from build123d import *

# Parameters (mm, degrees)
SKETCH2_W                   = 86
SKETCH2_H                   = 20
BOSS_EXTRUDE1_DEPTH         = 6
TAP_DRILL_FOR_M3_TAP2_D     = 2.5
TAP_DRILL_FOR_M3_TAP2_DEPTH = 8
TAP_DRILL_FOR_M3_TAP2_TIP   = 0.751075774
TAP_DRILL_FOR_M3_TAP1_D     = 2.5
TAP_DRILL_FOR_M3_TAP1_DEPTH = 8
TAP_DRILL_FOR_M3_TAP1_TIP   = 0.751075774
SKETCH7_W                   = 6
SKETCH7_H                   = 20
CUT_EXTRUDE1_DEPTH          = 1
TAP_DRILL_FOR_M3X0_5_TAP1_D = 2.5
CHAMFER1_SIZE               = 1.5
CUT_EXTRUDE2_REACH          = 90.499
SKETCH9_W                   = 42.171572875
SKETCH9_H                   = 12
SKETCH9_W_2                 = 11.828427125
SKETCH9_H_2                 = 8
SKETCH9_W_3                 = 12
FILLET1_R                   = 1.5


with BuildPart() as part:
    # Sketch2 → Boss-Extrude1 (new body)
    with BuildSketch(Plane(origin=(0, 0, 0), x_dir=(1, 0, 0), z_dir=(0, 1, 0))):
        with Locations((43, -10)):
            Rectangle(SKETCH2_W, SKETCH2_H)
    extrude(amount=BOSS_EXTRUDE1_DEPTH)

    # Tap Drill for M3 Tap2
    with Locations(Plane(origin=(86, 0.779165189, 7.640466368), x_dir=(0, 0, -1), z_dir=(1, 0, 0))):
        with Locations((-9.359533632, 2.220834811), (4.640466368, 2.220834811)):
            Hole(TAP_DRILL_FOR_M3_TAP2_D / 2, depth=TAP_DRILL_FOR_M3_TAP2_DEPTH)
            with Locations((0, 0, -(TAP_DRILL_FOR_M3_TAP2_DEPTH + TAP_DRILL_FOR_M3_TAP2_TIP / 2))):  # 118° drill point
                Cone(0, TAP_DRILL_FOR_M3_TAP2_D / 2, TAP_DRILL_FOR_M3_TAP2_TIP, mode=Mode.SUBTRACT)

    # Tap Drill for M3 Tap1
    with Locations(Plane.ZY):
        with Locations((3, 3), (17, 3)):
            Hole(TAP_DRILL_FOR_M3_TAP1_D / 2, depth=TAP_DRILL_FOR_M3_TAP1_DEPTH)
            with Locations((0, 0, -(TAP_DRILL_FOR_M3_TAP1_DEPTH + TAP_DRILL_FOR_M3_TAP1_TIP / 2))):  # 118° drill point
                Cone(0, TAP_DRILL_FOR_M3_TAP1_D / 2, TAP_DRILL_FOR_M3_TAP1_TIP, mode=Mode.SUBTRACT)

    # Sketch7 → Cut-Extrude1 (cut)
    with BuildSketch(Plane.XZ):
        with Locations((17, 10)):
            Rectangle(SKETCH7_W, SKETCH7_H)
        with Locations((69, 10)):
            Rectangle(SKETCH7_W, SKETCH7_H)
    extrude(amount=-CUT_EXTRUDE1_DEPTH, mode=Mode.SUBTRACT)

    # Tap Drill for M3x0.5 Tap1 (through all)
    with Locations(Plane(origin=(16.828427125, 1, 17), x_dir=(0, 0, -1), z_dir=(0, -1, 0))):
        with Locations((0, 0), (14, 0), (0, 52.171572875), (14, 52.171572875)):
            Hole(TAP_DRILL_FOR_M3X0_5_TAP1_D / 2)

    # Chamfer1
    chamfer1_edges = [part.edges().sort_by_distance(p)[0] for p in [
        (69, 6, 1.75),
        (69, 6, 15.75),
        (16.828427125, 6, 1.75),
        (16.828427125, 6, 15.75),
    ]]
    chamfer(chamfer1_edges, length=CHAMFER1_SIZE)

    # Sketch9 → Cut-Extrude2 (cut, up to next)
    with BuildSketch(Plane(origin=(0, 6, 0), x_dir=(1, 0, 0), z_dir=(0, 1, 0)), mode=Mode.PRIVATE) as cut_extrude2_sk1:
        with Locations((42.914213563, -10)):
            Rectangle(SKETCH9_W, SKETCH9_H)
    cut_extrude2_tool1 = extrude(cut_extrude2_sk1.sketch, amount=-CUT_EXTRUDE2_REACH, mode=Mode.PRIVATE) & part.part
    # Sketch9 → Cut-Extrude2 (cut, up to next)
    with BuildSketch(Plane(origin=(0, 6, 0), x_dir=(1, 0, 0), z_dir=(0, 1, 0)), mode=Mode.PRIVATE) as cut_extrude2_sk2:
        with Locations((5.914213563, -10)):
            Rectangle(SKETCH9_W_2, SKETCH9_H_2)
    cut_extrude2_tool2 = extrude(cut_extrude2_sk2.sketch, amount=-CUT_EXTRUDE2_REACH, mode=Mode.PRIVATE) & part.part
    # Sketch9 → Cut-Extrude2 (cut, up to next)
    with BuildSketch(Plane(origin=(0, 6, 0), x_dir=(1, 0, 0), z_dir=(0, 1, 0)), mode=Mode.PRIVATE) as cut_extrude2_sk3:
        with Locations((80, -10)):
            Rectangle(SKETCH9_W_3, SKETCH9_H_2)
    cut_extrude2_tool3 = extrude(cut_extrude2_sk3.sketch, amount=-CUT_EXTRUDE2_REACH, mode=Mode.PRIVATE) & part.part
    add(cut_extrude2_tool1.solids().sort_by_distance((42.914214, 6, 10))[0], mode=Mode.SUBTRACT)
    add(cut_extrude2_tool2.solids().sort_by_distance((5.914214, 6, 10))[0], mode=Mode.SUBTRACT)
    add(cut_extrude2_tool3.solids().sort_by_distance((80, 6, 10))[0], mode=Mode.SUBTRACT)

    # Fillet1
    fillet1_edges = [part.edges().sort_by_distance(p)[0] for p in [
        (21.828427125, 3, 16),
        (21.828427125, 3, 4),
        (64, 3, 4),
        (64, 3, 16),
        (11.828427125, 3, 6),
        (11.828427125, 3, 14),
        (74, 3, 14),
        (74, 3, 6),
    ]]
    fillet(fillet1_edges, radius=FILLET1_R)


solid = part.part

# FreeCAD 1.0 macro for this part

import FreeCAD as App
import Part
import Sketcher

V = App.Vector


def edges_at(feature, points):
    """Names of the edges that pass closest to the given points."""
    edges = feature.Shape.Edges
    near = lambda p: min(range(len(edges)), key=lambda i: edges[i].distToShape(Part.Vertex(*p))[0])
    return sorted({f"Edge{near(p) + 1}" for p in points})

doc = App.newDocument("Part")
params = doc.addObject("Spreadsheet::Sheet", "Params")
for row, (alias, value) in enumerate([
    ("sketch1_width", "86 mm"),
    ("sketch1_height", "20 mm"),
    ("pad1_length", "6 mm"),
    ("sketch2_diameter", "2.5 mm"),
    ("hole_diameter", "2.5 mm"),
    ("hole_depth", "8 mm"),
    ("sketch3_diameter", "2.5 mm"),
    ("hole2_diameter", "2.5 mm"),
    ("hole2_depth", "8 mm"),
    ("sketch4_width", "6 mm"),
    ("sketch4_height", "20 mm"),
    ("pocket1_length", "1 mm"),
    ("sketch5_diameter", "2.5 mm"),
    ("hole3_diameter", "2.5 mm"),
    ("chamfer_size", "1.5 mm"),
    ("sketch6_height", "12 mm"),
    ("sketch7_height", "8 mm"),
    ("sketch8_width", "12 mm"),
    ("sketch8_height", "8 mm"),
    ("fillet_radius", "1.5 mm"),
], start=1):
    params.set(f"A{row}", alias)
    params.set(f"B{row}", "=" + value)
    params.setAlias(f"B{row}", alias)

body = doc.addObject("PartDesign::Body", "Body")

# Sketch on XZ plane
sketch1 = doc.addObject("Sketcher::SketchObject", "Sketch")
body.addObject(sketch1)
sketch1.AttachmentSupport = (doc.XZ_Plane, [""])
sketch1.MapMode = "FlatFace"
sketch1.addGeometry(Part.LineSegment(V(0, 0, 0), V(0, 20, 0)), False)
sketch1.addGeometry(Part.LineSegment(V(0, 20, 0), V(86, 20, 0)), False)
sketch1.addGeometry(Part.LineSegment(V(86, 20, 0), V(86, 0, 0)), False)
sketch1.addGeometry(Part.LineSegment(V(86, 0, 0), V(0, 0, 0)), False)
sketch1.addConstraint(Sketcher.Constraint("Coincident", 0, 2, 1, 1))
sketch1.addConstraint(Sketcher.Constraint("Coincident", 1, 2, 2, 1))
sketch1.addConstraint(Sketcher.Constraint("Coincident", 2, 2, 3, 1))
sketch1.addConstraint(Sketcher.Constraint("Coincident", 3, 2, 0, 1))
sketch1.addConstraint(Sketcher.Constraint("Vertical", 0))
sketch1.addConstraint(Sketcher.Constraint("Horizontal", 1))
sketch1.addConstraint(Sketcher.Constraint("Vertical", 2))
sketch1.addConstraint(Sketcher.Constraint("Horizontal", 3))
sketch1.addConstraint(Sketcher.Constraint("Coincident", 3, 2, -1, 1))
sketch1.addConstraint(Sketcher.Constraint("DistanceX", 1, 1, 1, 2, 86.0))
sketch1.addConstraint(Sketcher.Constraint("DistanceY", 0, 1, 0, 2, 20.0))
sketch1.setExpression("Constraints[9]", "Params.sketch1_width")
sketch1.setExpression("Constraints[10]", "Params.sketch1_height")
pad1 = doc.addObject("PartDesign::Pad", "Pad")
body.addObject(pad1)
pad1.Profile = sketch1
pad1.setExpression("Length", "Params.pad1_length")
pad1.Reversed = True

# Sketch on YZ plane
sketch2 = doc.addObject("Sketcher::SketchObject", "Sketch001")
body.addObject(sketch2)
sketch2.AttachmentSupport = (doc.YZ_Plane, [""])
sketch2.MapMode = "FlatFace"
sketch2.AttachmentOffset = App.Placement(V(0, 0, 86), App.Rotation())
sketch2.addGeometry(Part.Circle(V(3, 17, 0), V(0, 0, 1), 1.2), False)
sketch2.addGeometry(Part.Circle(V(3, 3, 0), V(0, 0, 1), 1.2), False)
sketch2.addConstraint(Sketcher.Constraint("Equal", 0, 1))
sketch2.addConstraint(Sketcher.Constraint("Vertical", 0, 3, 1, 3))
sketch2.addConstraint(Sketcher.Constraint("Diameter", 0, 2.5))
sketch2.addConstraint(Sketcher.Constraint("DistanceX", -1, 1, 0, 3, 3.0))
sketch2.addConstraint(Sketcher.Constraint("DistanceY", -1, 1, 0, 3, 17.0))
sketch2.addConstraint(Sketcher.Constraint("DistanceY", -1, 1, 1, 3, 3.0))
sketch2.setExpression("Constraints[2]", "Params.sketch2_diameter")
doc.recompute()
hole = doc.addObject("PartDesign::Hole", "Hole")
body.addObject(hole)
hole.Profile = sketch2
hole.ThreadType = "None"
hole.setExpression("Diameter", "Params.hole_diameter")
hole.DepthType = "Dimension"
hole.setExpression("Depth", "Params.hole_depth")
hole.DrillPoint = "Angled"
hole.DrillPointAngle = 118

# Sketch on YZ plane
sketch3 = doc.addObject("Sketcher::SketchObject", "Sketch002")
body.addObject(sketch3)
sketch3.AttachmentSupport = (doc.YZ_Plane, [""])
sketch3.MapMode = "FlatFace"
sketch3.addGeometry(Part.Circle(V(3, 3, 0), V(0, 0, 1), 1.2), False)
sketch3.addGeometry(Part.Circle(V(3, 17, 0), V(0, 0, 1), 1.2), False)
sketch3.addConstraint(Sketcher.Constraint("Equal", 0, 1))
sketch3.addConstraint(Sketcher.Constraint("Vertical", 0, 3, 1, 3))
sketch3.addConstraint(Sketcher.Constraint("Diameter", 0, 2.5))
sketch3.addConstraint(Sketcher.Constraint("DistanceX", -1, 1, 0, 3, 3.0))
sketch3.addConstraint(Sketcher.Constraint("DistanceY", -1, 1, 0, 3, 3.0))
sketch3.addConstraint(Sketcher.Constraint("DistanceY", -1, 1, 1, 3, 17.0))
sketch3.setExpression("Constraints[2]", "Params.sketch3_diameter")
doc.recompute()
hole2 = doc.addObject("PartDesign::Hole", "Hole001")
body.addObject(hole2)
hole2.Profile = sketch3
hole2.ThreadType = "None"
hole2.setExpression("Diameter", "Params.hole2_diameter")
hole2.DepthType = "Dimension"
hole2.setExpression("Depth", "Params.hole2_depth")
hole2.DrillPoint = "Angled"
hole2.DrillPointAngle = 118
hole2.Reversed = True

# Sketch on XZ plane
sketch4 = doc.addObject("Sketcher::SketchObject", "Sketch003")
body.addObject(sketch4)
sketch4.AttachmentSupport = (doc.XZ_Plane, [""])
sketch4.MapMode = "FlatFace"
sketch4.addGeometry(Part.LineSegment(V(14, 20, 0), V(14, 0, 0)), False)
sketch4.addGeometry(Part.LineSegment(V(14, 0, 0), V(20, 0, 0)), False)
sketch4.addGeometry(Part.LineSegment(V(20, 0, 0), V(20, 20, 0)), False)
sketch4.addGeometry(Part.LineSegment(V(20, 20, 0), V(14, 20, 0)), False)
sketch4.addGeometry(Part.LineSegment(V(66, 20, 0), V(66, 0, 0)), False)
sketch4.addGeometry(Part.LineSegment(V(66, 0, 0), V(72, 0, 0)), False)
sketch4.addGeometry(Part.LineSegment(V(72, 0, 0), V(72, 20, 0)), False)
sketch4.addGeometry(Part.LineSegment(V(72, 20, 0), V(66, 20, 0)), False)
sketch4.addConstraint(Sketcher.Constraint("Coincident", 0, 2, 1, 1))
sketch4.addConstraint(Sketcher.Constraint("Coincident", 1, 2, 2, 1))
sketch4.addConstraint(Sketcher.Constraint("Coincident", 2, 2, 3, 1))
sketch4.addConstraint(Sketcher.Constraint("Coincident", 3, 2, 0, 1))
sketch4.addConstraint(Sketcher.Constraint("Coincident", 4, 2, 5, 1))
sketch4.addConstraint(Sketcher.Constraint("Coincident", 5, 2, 6, 1))
sketch4.addConstraint(Sketcher.Constraint("Coincident", 6, 2, 7, 1))
sketch4.addConstraint(Sketcher.Constraint("Coincident", 7, 2, 4, 1))
sketch4.addConstraint(Sketcher.Constraint("Vertical", 0))
sketch4.addConstraint(Sketcher.Constraint("Horizontal", 1))
sketch4.addConstraint(Sketcher.Constraint("Vertical", 2))
sketch4.addConstraint(Sketcher.Constraint("Horizontal", 3))
sketch4.addConstraint(Sketcher.Constraint("Vertical", 4))
sketch4.addConstraint(Sketcher.Constraint("Horizontal", 5))
sketch4.addConstraint(Sketcher.Constraint("Vertical", 6))
sketch4.addConstraint(Sketcher.Constraint("Horizontal", 7))
sketch4.addConstraint(Sketcher.Constraint("PointOnObject", 0, 2, -1))
sketch4.addConstraint(Sketcher.Constraint("PointOnObject", 4, 2, -1))
sketch4.addConstraint(Sketcher.Constraint("Horizontal", 3, 2, 6, 2))
sketch4.addConstraint(Sketcher.Constraint("Equal", 3, 5))
sketch4.addConstraint(Sketcher.Constraint("DistanceX", 1, 1, 1, 2, 6.0))
sketch4.addConstraint(Sketcher.Constraint("DistanceY", 0, 2, 0, 1, 20.0))
sketch4.addConstraint(Sketcher.Constraint("DistanceX", -1, 1, 0, 2, 14.0))
sketch4.addConstraint(Sketcher.Constraint("DistanceX", -1, 1, 4, 2, 66.0))
sketch4.setExpression("Constraints[20]", "Params.sketch4_width")
sketch4.setExpression("Constraints[21]", "Params.sketch4_height")
pocket1 = doc.addObject("PartDesign::Pocket", "Pocket")
body.addObject(pocket1)
pocket1.Profile = sketch4
pocket1.setExpression("Length", "Params.pocket1_length")

# Sketch on XZ plane
sketch5 = doc.addObject("Sketcher::SketchObject", "Sketch004")
body.addObject(sketch5)
sketch5.AttachmentSupport = (doc.XZ_Plane, [""])
sketch5.MapMode = "FlatFace"
sketch5.AttachmentOffset = App.Placement(V(0, 0, -1), App.Rotation())
sketch5.addGeometry(Part.Circle(V(16.8, 17, 0), V(0, 0, 1), 1.2), False)
sketch5.addGeometry(Part.Circle(V(16.8, 3, 0), V(0, 0, 1), 1.2), False)
sketch5.addGeometry(Part.Circle(V(69, 17, 0), V(0, 0, 1), 1.2), False)
sketch5.addGeometry(Part.Circle(V(69, 3, 0), V(0, 0, 1), 1.2), False)
sketch5.addConstraint(Sketcher.Constraint("Equal", 0, 1))
sketch5.addConstraint(Sketcher.Constraint("Equal", 1, 2))
sketch5.addConstraint(Sketcher.Constraint("Equal", 2, 3))
sketch5.addConstraint(Sketcher.Constraint("Horizontal", 0, 3, 2, 3))
sketch5.addConstraint(Sketcher.Constraint("Horizontal", 1, 3, 3, 3))
sketch5.addConstraint(Sketcher.Constraint("Vertical", 0, 3, 1, 3))
sketch5.addConstraint(Sketcher.Constraint("Vertical", 2, 3, 3, 3))
sketch5.addConstraint(Sketcher.Constraint("Diameter", 0, 2.5))
sketch5.addConstraint(Sketcher.Constraint("DistanceY", -1, 1, 0, 3, 17.0))
sketch5.addConstraint(Sketcher.Constraint("DistanceY", -1, 1, 1, 3, 3.0))
sketch5.addConstraint(Sketcher.Constraint("DistanceX", -1, 1, 2, 3, 69.0))
sketch5.addConstraint(Sketcher.Constraint("DistanceX", -1, 1, 0, 3, 16.828427))
sketch5.setExpression("Constraints[7]", "Params.sketch5_diameter")
doc.recompute()
hole3 = doc.addObject("PartDesign::Hole", "Hole002")
body.addObject(hole3)
hole3.Profile = sketch5
hole3.ThreadType = "None"
hole3.setExpression("Diameter", "Params.hole3_diameter")
hole3.DepthType = "ThroughAll"
doc.recompute()

chamfer = doc.addObject("PartDesign::Chamfer", "Chamfer")
body.addObject(chamfer)
chamfer.Base = (hole3, edges_at(hole3, [
    (69, 6, 1.75),
    (69, 6, 15.75),
    (16.828, 6, 1.75),
    (16.828, 6, 15.75),
]))
chamfer.setExpression("Size", "Params.chamfer_size")

# Sketch on XZ plane
sketch6 = doc.addObject("Sketcher::SketchObject", "Sketch005")
body.addObject(sketch6)
sketch6.AttachmentSupport = (doc.XZ_Plane, [""])
sketch6.MapMode = "FlatFace"
sketch6.AttachmentOffset = App.Placement(V(0, 0, -6), App.Rotation())
sketch6.addGeometry(Part.LineSegment(V(22, 4, 0), V(22, 16, 0)), False)
sketch6.addGeometry(Part.LineSegment(V(22, 16, 0), V(64, 16, 0)), False)
sketch6.addGeometry(Part.LineSegment(V(64, 16, 0), V(64, 4, 0)), False)
sketch6.addGeometry(Part.LineSegment(V(64, 4, 0), V(22, 4, 0)), False)
sketch6.addConstraint(Sketcher.Constraint("Coincident", 0, 2, 1, 1))
sketch6.addConstraint(Sketcher.Constraint("Coincident", 1, 2, 2, 1))
sketch6.addConstraint(Sketcher.Constraint("Coincident", 2, 2, 3, 1))
sketch6.addConstraint(Sketcher.Constraint("Coincident", 3, 2, 0, 1))
sketch6.addConstraint(Sketcher.Constraint("Vertical", 0))
sketch6.addConstraint(Sketcher.Constraint("Horizontal", 1))
sketch6.addConstraint(Sketcher.Constraint("Vertical", 2))
sketch6.addConstraint(Sketcher.Constraint("Horizontal", 3))
sketch6.addConstraint(Sketcher.Constraint("DistanceY", 0, 1, 0, 2, 12.0))
sketch6.addConstraint(Sketcher.Constraint("DistanceY", -1, 1, 0, 2, 16.0))
sketch6.addConstraint(Sketcher.Constraint("DistanceX", -1, 1, 1, 2, 64.0))
sketch6.addConstraint(Sketcher.Constraint("DistanceX", 1, 1, 1, 2, 42.171573))
sketch6.setExpression("Constraints[8]", "Params.sketch6_height")
pocket2 = doc.addObject("PartDesign::Pocket", "Pocket001")
body.addObject(pocket2)
pocket2.Profile = sketch6
pocket2.Type = "UpToFirst"
pocket2.Reversed = True

# Sketch on XZ plane
sketch7 = doc.addObject("Sketcher::SketchObject", "Sketch006")
body.addObject(sketch7)
sketch7.AttachmentSupport = (doc.XZ_Plane, [""])
sketch7.MapMode = "FlatFace"
sketch7.AttachmentOffset = App.Placement(V(0, 0, -6), App.Rotation())
sketch7.addGeometry(Part.LineSegment(V(0, 6, 0), V(0, 14, 0)), False)
sketch7.addGeometry(Part.LineSegment(V(0, 14, 0), V(12, 14, 0)), False)
sketch7.addGeometry(Part.LineSegment(V(12, 14, 0), V(12, 6, 0)), False)
sketch7.addGeometry(Part.LineSegment(V(12, 6, 0), V(0, 6, 0)), False)
sketch7.addConstraint(Sketcher.Constraint("Coincident", 0, 2, 1, 1))
sketch7.addConstraint(Sketcher.Constraint("Coincident", 1, 2, 2, 1))
sketch7.addConstraint(Sketcher.Constraint("Coincident", 2, 2, 3, 1))
sketch7.addConstraint(Sketcher.Constraint("Coincident", 3, 2, 0, 1))
sketch7.addConstraint(Sketcher.Constraint("Vertical", 0))
sketch7.addConstraint(Sketcher.Constraint("Horizontal", 1))
sketch7.addConstraint(Sketcher.Constraint("Vertical", 2))
sketch7.addConstraint(Sketcher.Constraint("Horizontal", 3))
sketch7.addConstraint(Sketcher.Constraint("PointOnObject", 0, 2, -2))
sketch7.addConstraint(Sketcher.Constraint("DistanceY", 0, 1, 0, 2, 8.0))
sketch7.addConstraint(Sketcher.Constraint("DistanceY", -1, 1, 0, 2, 14.0))
sketch7.addConstraint(Sketcher.Constraint("DistanceX", 1, 1, 1, 2, 11.828427))
sketch7.setExpression("Constraints[9]", "Params.sketch7_height")
pocket3 = doc.addObject("PartDesign::Pocket", "Pocket002")
body.addObject(pocket3)
pocket3.Profile = sketch7
pocket3.Type = "UpToFirst"
pocket3.Reversed = True

# Sketch on XZ plane
sketch8 = doc.addObject("Sketcher::SketchObject", "Sketch007")
body.addObject(sketch8)
sketch8.AttachmentSupport = (doc.XZ_Plane, [""])
sketch8.MapMode = "FlatFace"
sketch8.AttachmentOffset = App.Placement(V(0, 0, -6), App.Rotation())
sketch8.addGeometry(Part.LineSegment(V(74, 6, 0), V(74, 14, 0)), False)
sketch8.addGeometry(Part.LineSegment(V(74, 14, 0), V(86, 14, 0)), False)
sketch8.addGeometry(Part.LineSegment(V(86, 14, 0), V(86, 6, 0)), False)
sketch8.addGeometry(Part.LineSegment(V(86, 6, 0), V(74, 6, 0)), False)
sketch8.addConstraint(Sketcher.Constraint("Coincident", 0, 2, 1, 1))
sketch8.addConstraint(Sketcher.Constraint("Coincident", 1, 2, 2, 1))
sketch8.addConstraint(Sketcher.Constraint("Coincident", 2, 2, 3, 1))
sketch8.addConstraint(Sketcher.Constraint("Coincident", 3, 2, 0, 1))
sketch8.addConstraint(Sketcher.Constraint("Vertical", 0))
sketch8.addConstraint(Sketcher.Constraint("Horizontal", 1))
sketch8.addConstraint(Sketcher.Constraint("Vertical", 2))
sketch8.addConstraint(Sketcher.Constraint("Horizontal", 3))
sketch8.addConstraint(Sketcher.Constraint("DistanceX", 1, 1, 1, 2, 12.0))
sketch8.addConstraint(Sketcher.Constraint("DistanceY", 0, 1, 0, 2, 8.0))
sketch8.addConstraint(Sketcher.Constraint("DistanceX", -1, 1, 0, 2, 74.0))
sketch8.addConstraint(Sketcher.Constraint("DistanceY", -1, 1, 0, 2, 14.0))
sketch8.setExpression("Constraints[8]", "Params.sketch8_width")
sketch8.setExpression("Constraints[9]", "Params.sketch8_height")
pocket4 = doc.addObject("PartDesign::Pocket", "Pocket003")
body.addObject(pocket4)
pocket4.Profile = sketch8
pocket4.Type = "UpToFirst"
pocket4.Reversed = True
doc.recompute()

fillet = doc.addObject("PartDesign::Fillet", "Fillet")
body.addObject(fillet)
fillet.Base = (pocket4, edges_at(pocket4, [
    (21.828, 3, 16),
    (21.828, 3, 4),
    (64, 3, 4),
    (64, 3, 16),
    (11.828, 3, 6),
    (11.828, 3, 14),
    (74, 3, 14),
    (74, 3, 6),
]))
fillet.setExpression("Radius", "Params.fillet_radius")

doc.recompute()
